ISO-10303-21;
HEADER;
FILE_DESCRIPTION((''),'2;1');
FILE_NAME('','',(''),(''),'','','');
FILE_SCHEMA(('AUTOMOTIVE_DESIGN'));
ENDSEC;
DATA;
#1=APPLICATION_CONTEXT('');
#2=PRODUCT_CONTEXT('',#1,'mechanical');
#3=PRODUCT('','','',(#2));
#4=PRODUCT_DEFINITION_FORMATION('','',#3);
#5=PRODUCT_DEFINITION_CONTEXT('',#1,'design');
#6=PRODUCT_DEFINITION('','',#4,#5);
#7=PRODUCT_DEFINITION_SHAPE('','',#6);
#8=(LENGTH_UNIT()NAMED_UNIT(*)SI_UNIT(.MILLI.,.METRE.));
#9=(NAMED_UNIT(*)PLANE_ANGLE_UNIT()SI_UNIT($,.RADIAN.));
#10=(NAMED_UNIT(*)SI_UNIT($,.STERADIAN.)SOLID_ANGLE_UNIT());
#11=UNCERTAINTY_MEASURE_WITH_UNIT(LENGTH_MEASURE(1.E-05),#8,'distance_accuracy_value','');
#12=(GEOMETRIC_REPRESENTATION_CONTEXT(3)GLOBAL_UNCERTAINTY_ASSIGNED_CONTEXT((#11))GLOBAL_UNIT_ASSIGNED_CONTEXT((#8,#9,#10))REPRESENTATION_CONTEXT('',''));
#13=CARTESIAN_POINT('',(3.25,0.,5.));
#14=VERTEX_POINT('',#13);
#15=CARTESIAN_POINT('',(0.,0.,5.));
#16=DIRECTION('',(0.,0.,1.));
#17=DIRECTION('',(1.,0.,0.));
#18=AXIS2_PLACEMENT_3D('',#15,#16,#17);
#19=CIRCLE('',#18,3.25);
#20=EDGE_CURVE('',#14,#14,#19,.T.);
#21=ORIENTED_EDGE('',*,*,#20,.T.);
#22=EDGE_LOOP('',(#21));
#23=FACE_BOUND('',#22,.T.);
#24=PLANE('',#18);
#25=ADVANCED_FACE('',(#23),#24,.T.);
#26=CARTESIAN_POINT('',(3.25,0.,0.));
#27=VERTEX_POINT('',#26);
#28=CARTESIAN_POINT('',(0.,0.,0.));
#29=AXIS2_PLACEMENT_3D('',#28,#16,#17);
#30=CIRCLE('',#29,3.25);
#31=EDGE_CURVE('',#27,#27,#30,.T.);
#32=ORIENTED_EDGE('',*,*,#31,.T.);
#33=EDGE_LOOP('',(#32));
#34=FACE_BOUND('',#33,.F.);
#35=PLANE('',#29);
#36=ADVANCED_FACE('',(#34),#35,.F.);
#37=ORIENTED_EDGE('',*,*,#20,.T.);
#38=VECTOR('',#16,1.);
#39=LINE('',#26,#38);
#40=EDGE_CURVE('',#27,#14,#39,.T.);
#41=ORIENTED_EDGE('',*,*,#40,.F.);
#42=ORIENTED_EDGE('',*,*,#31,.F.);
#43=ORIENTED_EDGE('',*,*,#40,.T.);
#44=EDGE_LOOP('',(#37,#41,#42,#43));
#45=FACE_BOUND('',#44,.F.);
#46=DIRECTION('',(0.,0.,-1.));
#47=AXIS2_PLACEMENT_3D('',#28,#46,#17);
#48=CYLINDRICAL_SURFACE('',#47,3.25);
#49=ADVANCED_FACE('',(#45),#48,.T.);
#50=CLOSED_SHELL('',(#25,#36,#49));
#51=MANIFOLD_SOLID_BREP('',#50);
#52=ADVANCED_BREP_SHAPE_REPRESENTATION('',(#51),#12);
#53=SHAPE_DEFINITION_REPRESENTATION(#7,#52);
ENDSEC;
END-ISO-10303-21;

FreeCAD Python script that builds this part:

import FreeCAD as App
import Part
import Sketcher

V = App.Vector

doc = App.newDocument("Part")
params = doc.addObject("Spreadsheet::Sheet", "Params")
for row, (alias, value) in enumerate([
    ("sketch1_diameter", "6.5 mm"),
    ("pad1_length", "5 mm"),
], start=1):
    params.set(f"A{row}", alias)
    params.set(f"B{row}", "=" + value)
    params.setAlias(f"B{row}", alias)

body = doc.addObject("PartDesign::Body", "Body")

sketch1 = doc.addObject("Sketcher::SketchObject", "Sketch")
body.addObject(sketch1)
sketch1.AttachmentSupport = (doc.XY_Plane, [""])
sketch1.MapMode = "FlatFace"
sketch1.addGeometry(Part.Circle(V(0, 0, 0), V(0, 0, 1), 3.2), False)
sketch1.addConstraint(Sketcher.Constraint("Coincident", 0, 3, -1, 1))
sketch1.addConstraint(Sketcher.Constraint("Diameter", 0, 6.5))
sketch1.setExpression("Constraints[1]", "Params.sketch1_diameter")
pad1 = doc.addObject("PartDesign::Pad", "Pad")
body.addObject(pad1)
pad1.Profile = sketch1
pad1.setExpression("Length", "Params.pad1_length")

doc.recompute()
